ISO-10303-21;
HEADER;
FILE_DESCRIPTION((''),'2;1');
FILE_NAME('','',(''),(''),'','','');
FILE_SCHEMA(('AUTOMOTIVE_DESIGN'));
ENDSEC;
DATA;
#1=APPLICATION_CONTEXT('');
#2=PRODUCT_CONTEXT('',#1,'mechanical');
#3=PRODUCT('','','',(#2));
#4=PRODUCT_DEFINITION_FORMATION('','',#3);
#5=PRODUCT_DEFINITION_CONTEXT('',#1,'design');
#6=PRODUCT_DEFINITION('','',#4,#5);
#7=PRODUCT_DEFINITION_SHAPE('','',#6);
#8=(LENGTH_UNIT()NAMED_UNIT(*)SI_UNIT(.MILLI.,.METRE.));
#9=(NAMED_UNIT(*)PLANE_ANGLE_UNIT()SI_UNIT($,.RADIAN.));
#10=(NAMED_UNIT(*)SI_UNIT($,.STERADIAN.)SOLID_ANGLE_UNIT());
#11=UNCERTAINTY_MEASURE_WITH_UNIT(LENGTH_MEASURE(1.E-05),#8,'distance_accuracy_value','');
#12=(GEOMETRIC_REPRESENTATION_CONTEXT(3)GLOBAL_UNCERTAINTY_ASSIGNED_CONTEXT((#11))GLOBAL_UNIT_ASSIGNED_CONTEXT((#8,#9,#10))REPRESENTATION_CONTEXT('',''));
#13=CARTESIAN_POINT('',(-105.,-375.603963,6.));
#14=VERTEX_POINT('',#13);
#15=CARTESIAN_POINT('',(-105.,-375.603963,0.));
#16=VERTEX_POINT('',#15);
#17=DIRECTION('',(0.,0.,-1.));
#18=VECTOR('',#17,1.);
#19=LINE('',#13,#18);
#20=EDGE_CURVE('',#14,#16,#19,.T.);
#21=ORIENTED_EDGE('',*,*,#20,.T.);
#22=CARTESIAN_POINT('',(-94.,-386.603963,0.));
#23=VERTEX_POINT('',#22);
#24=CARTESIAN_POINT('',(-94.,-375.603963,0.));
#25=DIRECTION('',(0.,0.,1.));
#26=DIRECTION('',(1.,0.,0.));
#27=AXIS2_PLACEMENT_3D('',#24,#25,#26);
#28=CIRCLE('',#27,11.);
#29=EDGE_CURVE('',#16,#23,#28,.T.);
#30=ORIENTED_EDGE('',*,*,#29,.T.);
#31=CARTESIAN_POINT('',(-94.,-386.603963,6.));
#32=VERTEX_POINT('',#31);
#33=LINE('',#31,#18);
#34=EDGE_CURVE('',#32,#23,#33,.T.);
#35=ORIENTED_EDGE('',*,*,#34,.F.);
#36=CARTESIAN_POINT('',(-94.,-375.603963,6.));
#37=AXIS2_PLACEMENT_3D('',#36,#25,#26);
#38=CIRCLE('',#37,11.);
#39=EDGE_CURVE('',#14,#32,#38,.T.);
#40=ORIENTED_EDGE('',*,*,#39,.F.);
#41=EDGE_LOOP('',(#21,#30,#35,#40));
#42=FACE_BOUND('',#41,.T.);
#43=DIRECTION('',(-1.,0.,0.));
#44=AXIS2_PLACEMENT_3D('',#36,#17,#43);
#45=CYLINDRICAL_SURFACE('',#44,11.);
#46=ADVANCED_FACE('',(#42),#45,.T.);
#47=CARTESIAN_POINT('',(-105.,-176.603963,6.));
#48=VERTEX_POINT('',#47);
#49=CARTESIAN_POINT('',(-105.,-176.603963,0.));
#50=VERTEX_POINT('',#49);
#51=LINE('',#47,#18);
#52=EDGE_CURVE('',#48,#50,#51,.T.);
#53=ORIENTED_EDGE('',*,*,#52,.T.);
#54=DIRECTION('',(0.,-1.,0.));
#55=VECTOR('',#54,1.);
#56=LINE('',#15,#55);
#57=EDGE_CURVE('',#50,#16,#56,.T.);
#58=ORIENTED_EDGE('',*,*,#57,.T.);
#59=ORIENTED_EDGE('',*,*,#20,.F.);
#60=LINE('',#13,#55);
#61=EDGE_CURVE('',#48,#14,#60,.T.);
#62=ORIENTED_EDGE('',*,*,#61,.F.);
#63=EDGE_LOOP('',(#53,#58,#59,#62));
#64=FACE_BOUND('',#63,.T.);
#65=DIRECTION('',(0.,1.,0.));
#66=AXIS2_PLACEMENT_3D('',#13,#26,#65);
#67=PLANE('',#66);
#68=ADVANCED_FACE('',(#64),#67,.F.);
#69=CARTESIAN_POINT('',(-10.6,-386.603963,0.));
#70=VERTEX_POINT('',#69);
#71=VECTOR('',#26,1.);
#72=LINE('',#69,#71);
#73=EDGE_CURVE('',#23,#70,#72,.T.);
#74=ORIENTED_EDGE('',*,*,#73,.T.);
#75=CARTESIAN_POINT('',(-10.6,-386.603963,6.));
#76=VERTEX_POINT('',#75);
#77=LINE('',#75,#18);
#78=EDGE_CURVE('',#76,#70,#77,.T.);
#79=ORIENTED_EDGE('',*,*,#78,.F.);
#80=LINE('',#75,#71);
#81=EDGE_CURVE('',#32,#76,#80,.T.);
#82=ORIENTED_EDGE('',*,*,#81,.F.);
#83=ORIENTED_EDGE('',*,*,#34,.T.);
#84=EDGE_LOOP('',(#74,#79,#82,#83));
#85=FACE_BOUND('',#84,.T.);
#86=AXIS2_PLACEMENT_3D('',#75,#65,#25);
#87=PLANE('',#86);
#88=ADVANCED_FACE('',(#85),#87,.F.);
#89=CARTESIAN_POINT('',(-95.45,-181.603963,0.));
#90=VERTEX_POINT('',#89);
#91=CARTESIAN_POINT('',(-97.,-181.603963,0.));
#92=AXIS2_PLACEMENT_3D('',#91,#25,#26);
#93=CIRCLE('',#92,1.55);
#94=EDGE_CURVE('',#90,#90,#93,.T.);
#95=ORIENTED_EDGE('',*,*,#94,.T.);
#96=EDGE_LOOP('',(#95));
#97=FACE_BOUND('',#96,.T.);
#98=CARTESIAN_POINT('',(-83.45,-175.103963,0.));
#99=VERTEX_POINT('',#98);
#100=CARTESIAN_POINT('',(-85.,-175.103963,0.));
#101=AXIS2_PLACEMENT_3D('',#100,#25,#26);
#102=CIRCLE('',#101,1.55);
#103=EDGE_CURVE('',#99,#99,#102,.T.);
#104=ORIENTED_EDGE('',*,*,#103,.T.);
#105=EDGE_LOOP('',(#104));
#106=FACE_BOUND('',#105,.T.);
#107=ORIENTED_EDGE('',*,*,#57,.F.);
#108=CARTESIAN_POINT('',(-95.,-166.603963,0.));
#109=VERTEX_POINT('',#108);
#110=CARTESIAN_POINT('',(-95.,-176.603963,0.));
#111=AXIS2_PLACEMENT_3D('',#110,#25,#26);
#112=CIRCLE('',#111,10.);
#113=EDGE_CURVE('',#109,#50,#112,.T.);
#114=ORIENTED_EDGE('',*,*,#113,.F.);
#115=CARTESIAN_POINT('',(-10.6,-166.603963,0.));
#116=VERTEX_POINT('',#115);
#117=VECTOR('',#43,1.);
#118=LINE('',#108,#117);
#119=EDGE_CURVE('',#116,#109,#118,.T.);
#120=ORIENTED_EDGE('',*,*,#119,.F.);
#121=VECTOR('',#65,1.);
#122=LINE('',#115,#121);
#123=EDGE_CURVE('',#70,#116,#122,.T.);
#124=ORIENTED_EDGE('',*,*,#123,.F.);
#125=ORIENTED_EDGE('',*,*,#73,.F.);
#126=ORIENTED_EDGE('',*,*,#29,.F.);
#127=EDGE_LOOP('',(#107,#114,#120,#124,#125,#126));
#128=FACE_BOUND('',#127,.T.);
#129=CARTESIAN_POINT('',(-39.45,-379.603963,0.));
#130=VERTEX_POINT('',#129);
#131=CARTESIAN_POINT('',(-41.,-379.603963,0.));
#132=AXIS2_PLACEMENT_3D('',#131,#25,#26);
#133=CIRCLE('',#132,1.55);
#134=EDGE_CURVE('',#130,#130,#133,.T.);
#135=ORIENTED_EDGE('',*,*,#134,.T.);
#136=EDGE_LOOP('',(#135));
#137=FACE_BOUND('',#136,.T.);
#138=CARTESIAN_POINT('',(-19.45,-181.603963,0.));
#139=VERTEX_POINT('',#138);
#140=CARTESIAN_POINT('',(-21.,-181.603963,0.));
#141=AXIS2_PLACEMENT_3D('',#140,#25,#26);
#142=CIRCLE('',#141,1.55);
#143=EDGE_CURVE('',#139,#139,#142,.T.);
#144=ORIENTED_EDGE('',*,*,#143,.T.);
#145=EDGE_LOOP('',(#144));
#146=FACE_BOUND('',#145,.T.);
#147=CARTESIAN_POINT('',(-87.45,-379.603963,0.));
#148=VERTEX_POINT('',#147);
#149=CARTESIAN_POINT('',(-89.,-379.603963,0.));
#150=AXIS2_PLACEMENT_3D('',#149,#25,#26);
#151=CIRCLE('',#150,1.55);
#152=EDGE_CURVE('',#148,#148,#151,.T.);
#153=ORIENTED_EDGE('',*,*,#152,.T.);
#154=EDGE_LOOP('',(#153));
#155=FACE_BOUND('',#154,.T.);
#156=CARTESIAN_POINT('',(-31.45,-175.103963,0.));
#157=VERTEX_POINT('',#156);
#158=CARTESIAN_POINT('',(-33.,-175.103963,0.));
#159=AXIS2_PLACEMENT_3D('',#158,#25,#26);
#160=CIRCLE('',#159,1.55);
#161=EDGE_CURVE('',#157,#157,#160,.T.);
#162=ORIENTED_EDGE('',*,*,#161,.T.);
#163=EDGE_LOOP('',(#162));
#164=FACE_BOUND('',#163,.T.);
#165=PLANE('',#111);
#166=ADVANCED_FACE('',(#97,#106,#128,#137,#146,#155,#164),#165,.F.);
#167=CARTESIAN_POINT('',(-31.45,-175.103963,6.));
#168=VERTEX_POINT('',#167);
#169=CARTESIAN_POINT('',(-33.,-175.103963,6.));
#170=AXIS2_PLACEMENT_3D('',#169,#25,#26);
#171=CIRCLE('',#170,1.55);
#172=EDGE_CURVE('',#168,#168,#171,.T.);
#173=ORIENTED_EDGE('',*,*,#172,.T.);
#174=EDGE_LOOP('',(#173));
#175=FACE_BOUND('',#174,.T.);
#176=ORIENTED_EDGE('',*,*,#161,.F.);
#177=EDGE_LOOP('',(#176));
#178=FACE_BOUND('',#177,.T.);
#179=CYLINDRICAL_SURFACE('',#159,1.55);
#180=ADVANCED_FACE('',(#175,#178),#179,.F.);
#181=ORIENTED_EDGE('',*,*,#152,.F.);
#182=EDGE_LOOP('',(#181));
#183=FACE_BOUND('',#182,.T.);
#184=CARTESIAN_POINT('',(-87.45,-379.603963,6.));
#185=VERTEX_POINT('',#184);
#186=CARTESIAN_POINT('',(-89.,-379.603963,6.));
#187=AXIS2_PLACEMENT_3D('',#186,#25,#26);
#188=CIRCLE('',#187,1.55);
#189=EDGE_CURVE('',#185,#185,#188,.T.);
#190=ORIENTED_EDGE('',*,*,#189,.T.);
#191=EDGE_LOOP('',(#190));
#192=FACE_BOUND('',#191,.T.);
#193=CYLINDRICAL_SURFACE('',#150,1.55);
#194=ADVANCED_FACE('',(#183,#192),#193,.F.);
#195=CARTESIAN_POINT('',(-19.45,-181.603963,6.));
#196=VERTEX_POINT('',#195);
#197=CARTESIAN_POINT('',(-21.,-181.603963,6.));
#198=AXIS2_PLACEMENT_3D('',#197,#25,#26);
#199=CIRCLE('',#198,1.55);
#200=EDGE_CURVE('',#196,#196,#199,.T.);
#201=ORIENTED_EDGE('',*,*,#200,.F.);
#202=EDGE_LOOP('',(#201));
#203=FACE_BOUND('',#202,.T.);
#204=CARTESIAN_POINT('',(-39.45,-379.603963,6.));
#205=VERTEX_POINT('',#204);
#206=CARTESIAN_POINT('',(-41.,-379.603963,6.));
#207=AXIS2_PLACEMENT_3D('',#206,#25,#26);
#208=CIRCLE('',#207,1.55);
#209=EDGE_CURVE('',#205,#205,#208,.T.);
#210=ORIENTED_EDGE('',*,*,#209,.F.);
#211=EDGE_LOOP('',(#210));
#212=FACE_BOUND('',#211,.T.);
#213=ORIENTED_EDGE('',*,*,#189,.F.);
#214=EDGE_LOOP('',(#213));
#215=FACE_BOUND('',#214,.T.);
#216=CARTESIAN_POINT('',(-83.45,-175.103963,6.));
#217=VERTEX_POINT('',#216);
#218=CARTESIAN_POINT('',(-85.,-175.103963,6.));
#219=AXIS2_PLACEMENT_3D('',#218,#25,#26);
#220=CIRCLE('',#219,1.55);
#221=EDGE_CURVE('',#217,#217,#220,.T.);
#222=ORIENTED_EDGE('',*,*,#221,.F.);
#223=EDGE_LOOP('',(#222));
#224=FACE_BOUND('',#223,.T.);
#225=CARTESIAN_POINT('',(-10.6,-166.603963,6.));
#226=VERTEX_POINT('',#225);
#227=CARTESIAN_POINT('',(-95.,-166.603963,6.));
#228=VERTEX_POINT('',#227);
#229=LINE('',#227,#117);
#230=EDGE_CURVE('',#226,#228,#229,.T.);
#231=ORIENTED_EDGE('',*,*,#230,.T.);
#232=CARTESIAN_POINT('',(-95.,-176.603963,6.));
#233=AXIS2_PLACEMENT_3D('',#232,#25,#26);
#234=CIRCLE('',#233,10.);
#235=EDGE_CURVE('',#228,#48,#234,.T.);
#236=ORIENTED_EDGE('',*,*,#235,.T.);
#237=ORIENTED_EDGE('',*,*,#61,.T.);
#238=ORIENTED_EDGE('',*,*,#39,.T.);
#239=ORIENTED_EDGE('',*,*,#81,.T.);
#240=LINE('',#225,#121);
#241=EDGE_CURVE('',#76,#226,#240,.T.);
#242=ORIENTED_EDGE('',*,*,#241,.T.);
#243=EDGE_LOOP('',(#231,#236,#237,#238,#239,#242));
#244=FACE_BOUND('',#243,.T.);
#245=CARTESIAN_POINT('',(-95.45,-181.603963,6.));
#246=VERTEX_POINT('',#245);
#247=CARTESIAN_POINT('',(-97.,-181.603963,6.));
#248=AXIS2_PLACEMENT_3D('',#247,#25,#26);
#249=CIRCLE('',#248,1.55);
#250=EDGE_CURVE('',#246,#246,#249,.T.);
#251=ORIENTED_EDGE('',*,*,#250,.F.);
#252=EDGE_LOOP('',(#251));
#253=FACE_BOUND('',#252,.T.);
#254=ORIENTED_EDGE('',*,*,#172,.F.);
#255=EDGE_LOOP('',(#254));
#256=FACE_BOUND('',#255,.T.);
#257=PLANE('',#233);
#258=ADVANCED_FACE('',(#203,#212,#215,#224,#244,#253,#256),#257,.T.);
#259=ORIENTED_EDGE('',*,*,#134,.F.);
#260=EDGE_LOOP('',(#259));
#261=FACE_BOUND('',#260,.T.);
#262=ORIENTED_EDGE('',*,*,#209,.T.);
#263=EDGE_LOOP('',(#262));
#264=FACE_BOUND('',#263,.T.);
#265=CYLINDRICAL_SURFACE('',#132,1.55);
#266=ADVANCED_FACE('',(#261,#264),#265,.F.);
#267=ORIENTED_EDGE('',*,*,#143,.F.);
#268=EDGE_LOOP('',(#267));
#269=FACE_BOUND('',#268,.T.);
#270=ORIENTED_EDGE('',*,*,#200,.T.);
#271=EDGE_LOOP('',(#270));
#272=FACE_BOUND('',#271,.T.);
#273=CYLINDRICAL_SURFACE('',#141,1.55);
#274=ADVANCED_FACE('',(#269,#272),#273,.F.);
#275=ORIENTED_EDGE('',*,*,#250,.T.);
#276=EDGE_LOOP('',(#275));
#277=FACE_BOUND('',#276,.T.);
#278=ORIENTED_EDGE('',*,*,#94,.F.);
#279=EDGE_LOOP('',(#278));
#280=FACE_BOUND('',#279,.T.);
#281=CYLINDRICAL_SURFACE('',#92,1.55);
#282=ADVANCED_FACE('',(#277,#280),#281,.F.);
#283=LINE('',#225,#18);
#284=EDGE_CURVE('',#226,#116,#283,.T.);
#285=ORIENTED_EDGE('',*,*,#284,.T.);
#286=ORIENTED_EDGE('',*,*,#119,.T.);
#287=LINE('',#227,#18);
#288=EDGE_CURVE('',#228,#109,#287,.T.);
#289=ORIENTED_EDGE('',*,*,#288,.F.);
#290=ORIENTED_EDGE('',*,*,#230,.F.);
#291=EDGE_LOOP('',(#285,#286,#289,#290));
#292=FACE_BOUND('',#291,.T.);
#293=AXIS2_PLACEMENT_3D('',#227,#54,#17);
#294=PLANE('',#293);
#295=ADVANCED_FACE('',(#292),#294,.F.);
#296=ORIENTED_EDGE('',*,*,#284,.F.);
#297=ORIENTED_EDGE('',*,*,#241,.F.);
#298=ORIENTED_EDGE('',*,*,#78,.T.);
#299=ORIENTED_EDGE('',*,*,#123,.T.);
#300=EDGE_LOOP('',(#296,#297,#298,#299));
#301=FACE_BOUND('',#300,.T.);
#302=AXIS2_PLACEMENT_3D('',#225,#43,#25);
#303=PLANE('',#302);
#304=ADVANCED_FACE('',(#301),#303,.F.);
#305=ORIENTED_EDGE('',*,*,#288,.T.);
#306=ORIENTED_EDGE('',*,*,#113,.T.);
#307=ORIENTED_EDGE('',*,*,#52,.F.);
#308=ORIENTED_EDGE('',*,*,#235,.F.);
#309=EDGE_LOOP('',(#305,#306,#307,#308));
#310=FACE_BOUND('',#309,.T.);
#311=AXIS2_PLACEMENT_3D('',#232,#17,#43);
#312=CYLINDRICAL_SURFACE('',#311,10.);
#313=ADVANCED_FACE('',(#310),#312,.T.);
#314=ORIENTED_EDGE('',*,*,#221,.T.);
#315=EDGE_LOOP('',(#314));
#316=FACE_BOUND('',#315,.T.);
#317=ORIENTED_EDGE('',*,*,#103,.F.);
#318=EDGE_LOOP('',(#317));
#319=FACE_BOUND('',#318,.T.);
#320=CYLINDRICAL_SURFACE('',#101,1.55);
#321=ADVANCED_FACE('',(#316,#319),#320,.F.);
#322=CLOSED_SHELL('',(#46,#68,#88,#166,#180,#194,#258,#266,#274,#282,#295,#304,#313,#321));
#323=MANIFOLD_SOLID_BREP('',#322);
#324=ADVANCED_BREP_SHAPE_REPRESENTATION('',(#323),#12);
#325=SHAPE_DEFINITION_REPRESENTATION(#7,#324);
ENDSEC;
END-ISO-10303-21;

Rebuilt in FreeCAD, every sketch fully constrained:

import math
import FreeCAD as App
import Part
import Sketcher

V = App.Vector
Q = App.Units.Quantity

doc = App.newDocument("Part")
params = doc.addObject("Spreadsheet::Sheet", "Params")
for row, (alias, value) in enumerate([
    ("sketch1_radius", "10 mm"),
    ("sketch1_radius2", "11 mm"),
    ("sketch1_height", "220 mm"),
    ("sketch1_width", "84.4 mm"),
    ("pad1_length", "6 mm"),
    ("sketch2_diameter", "3.1 mm"),
    ("pocket1_length", "6 mm"),
    ("sketch3_diameter", "3.1 mm"),
    ("pocket2_length", "6 mm"),
], start=1):
    params.set(f"A{row}", alias)
    params.set(f"B{row}", "=" + value)
    params.setAlias(f"B{row}", alias)

body = doc.addObject("PartDesign::Body", "Body")

sketch1 = body.newObject("Sketcher::SketchObject", "Sketch")
sketch1.AttachmentSupport = (doc.getObject("XY_Plane"), [""])
sketch1.MapMode = "FlatFace"
sketch1.addGeometry([
    Part.LineSegment(V(-11, -387, 0), V(-11, -167, 0)),
    Part.LineSegment(V(-11, -167, 0), V(-95, -167, 0)),
    Part.ArcOfCircle(Part.Circle(V(-95, -177, 0), V(0, 0, 1), 10), math.radians(90), math.radians(180)),
    Part.LineSegment(V(-105, -177, 0), V(-105, -376, 0)),
    Part.ArcOfCircle(Part.Circle(V(-94, -376, 0), V(0, 0, 1), 11), math.radians(180), math.radians(270)),
    Part.LineSegment(V(-94, -387, 0), V(-11, -387, 0)),
], False)
sketch1.addConstraint([
    Sketcher.Constraint("Coincident", 0, 2, 1, 1),
    Sketcher.Constraint("Tangent", 1, 2, 2, 1),
    Sketcher.Constraint("Tangent", 2, 2, 3, 1),
    Sketcher.Constraint("Tangent", 3, 2, 4, 1),
    Sketcher.Constraint("Tangent", 4, 2, 5, 1),
    Sketcher.Constraint("Coincident", 5, 2, 0, 1),
    Sketcher.Constraint("Vertical", 0),
    Sketcher.Constraint("Horizontal", 1),
    Sketcher.Constraint("Vertical", 3),
    Sketcher.Constraint("Horizontal", 5),
    Sketcher.Constraint("Radius", 2, Q("10 mm")),
    Sketcher.Constraint("Radius", 4, Q("11 mm")),
    Sketcher.Constraint("DistanceY", 0, 1, 0, 2, Q("220 mm")),
    Sketcher.Constraint("DistanceX", 1, 2, 1, 1, Q("84.4 mm")),
    Sketcher.Constraint("DistanceX", 2, 3, -1, 1, Q("95 mm")),
    Sketcher.Constraint("DistanceY", 2, 3, -1, 1, Q("176.603963 mm")),
])
sketch1.setExpression("Constraints[10]", "Params.sketch1_radius")
sketch1.setExpression("Constraints[11]", "Params.sketch1_radius2")
sketch1.setExpression("Constraints[12]", "Params.sketch1_height")
sketch1.setExpression("Constraints[13]", "Params.sketch1_width")
pad1 = body.newObject("PartDesign::Pad", "Pad")
pad1.Profile = sketch1
pad1.setExpression("Length", "Params.pad1_length")

sketch2 = body.newObject("Sketcher::SketchObject", "Sketch001")
sketch2.AttachmentSupport = (doc.getObject("XY_Plane"), [""])
sketch2.MapMode = "FlatFace"
sketch2.AttachmentOffset = App.Placement(V(0, 0, 6), App.Rotation())
sketch2.addGeometry([
    Part.Circle(V(-41, -379.6, 0), V(0, 0, 1), 1.6),
    Part.Circle(V(-89, -379.6, 0), V(0, 0, 1), 1.6),
], False)
sketch2.addConstraint([
    Sketcher.Constraint("Equal", 0, 1),
    Sketcher.Constraint("Horizontal", 0, 3, 1, 3),
    Sketcher.Constraint("Diameter", 0, Q("3.1 mm")),
    Sketcher.Constraint("DistanceX", 0, 3, -1, 1, Q("41 mm")),
    Sketcher.Constraint("DistanceX", 1, 3, -1, 1, Q("89 mm")),
    Sketcher.Constraint("DistanceY", 0, 3, -1, 1, Q("379.603963 mm")),
])
sketch2.setExpression("Constraints[2]", "Params.sketch2_diameter")
pocket1 = body.newObject("PartDesign::Pocket", "Pocket")
pocket1.Profile = sketch2
pocket1.setExpression("Length", "Params.pocket1_length")

sketch3 = body.newObject("Sketcher::SketchObject", "Sketch002")
sketch3.AttachmentSupport = (doc.getObject("XY_Plane"), [""])
sketch3.MapMode = "FlatFace"
sketch3.AttachmentOffset = App.Placement(V(0, 0, 6), App.Rotation())
sketch3.addGeometry([
    Part.Circle(V(-21, -181.6, 0), V(0, 0, 1), 1.6),
    Part.Circle(V(-97, -181.6, 0), V(0, 0, 1), 1.6),
    Part.Circle(V(-85, -175.1, 0), V(0, 0, 1), 1.6),
    Part.Circle(V(-33, -175.1, 0), V(0, 0, 1), 1.6),
], False)
sketch3.addConstraint([
    Sketcher.Constraint("Equal", 0, 1),
    Sketcher.Constraint("Equal", 1, 2),
    Sketcher.Constraint("Equal", 2, 3),
    Sketcher.Constraint("Horizontal", 0, 3, 1, 3),
    Sketcher.Constraint("Horizontal", 2, 3, 3, 3),
    Sketcher.Constraint("Diameter", 0, Q("3.1 mm")),
    Sketcher.Constraint("DistanceX", 0, 3, -1, 1, Q("21 mm")),
    Sketcher.Constraint("DistanceX", 1, 3, -1, 1, Q("97 mm")),
    Sketcher.Constraint("DistanceX", 2, 3, -1, 1, Q("85 mm")),
    Sketcher.Constraint("DistanceX", 3, 3, -1, 1, Q("33 mm")),
    Sketcher.Constraint("DistanceY", 1, 3, 2, 3, Q("6.5 mm")),
    Sketcher.Constraint("DistanceY", 0, 3, -1, 1, Q("181.603963 mm")),
])
sketch3.setExpression("Constraints[5]", "Params.sketch3_diameter")
pocket2 = body.newObject("PartDesign::Pocket", "Pocket001")
pocket2.Profile = sketch3
pocket2.setExpression("Length", "Params.pocket2_length")

doc.recompute()
